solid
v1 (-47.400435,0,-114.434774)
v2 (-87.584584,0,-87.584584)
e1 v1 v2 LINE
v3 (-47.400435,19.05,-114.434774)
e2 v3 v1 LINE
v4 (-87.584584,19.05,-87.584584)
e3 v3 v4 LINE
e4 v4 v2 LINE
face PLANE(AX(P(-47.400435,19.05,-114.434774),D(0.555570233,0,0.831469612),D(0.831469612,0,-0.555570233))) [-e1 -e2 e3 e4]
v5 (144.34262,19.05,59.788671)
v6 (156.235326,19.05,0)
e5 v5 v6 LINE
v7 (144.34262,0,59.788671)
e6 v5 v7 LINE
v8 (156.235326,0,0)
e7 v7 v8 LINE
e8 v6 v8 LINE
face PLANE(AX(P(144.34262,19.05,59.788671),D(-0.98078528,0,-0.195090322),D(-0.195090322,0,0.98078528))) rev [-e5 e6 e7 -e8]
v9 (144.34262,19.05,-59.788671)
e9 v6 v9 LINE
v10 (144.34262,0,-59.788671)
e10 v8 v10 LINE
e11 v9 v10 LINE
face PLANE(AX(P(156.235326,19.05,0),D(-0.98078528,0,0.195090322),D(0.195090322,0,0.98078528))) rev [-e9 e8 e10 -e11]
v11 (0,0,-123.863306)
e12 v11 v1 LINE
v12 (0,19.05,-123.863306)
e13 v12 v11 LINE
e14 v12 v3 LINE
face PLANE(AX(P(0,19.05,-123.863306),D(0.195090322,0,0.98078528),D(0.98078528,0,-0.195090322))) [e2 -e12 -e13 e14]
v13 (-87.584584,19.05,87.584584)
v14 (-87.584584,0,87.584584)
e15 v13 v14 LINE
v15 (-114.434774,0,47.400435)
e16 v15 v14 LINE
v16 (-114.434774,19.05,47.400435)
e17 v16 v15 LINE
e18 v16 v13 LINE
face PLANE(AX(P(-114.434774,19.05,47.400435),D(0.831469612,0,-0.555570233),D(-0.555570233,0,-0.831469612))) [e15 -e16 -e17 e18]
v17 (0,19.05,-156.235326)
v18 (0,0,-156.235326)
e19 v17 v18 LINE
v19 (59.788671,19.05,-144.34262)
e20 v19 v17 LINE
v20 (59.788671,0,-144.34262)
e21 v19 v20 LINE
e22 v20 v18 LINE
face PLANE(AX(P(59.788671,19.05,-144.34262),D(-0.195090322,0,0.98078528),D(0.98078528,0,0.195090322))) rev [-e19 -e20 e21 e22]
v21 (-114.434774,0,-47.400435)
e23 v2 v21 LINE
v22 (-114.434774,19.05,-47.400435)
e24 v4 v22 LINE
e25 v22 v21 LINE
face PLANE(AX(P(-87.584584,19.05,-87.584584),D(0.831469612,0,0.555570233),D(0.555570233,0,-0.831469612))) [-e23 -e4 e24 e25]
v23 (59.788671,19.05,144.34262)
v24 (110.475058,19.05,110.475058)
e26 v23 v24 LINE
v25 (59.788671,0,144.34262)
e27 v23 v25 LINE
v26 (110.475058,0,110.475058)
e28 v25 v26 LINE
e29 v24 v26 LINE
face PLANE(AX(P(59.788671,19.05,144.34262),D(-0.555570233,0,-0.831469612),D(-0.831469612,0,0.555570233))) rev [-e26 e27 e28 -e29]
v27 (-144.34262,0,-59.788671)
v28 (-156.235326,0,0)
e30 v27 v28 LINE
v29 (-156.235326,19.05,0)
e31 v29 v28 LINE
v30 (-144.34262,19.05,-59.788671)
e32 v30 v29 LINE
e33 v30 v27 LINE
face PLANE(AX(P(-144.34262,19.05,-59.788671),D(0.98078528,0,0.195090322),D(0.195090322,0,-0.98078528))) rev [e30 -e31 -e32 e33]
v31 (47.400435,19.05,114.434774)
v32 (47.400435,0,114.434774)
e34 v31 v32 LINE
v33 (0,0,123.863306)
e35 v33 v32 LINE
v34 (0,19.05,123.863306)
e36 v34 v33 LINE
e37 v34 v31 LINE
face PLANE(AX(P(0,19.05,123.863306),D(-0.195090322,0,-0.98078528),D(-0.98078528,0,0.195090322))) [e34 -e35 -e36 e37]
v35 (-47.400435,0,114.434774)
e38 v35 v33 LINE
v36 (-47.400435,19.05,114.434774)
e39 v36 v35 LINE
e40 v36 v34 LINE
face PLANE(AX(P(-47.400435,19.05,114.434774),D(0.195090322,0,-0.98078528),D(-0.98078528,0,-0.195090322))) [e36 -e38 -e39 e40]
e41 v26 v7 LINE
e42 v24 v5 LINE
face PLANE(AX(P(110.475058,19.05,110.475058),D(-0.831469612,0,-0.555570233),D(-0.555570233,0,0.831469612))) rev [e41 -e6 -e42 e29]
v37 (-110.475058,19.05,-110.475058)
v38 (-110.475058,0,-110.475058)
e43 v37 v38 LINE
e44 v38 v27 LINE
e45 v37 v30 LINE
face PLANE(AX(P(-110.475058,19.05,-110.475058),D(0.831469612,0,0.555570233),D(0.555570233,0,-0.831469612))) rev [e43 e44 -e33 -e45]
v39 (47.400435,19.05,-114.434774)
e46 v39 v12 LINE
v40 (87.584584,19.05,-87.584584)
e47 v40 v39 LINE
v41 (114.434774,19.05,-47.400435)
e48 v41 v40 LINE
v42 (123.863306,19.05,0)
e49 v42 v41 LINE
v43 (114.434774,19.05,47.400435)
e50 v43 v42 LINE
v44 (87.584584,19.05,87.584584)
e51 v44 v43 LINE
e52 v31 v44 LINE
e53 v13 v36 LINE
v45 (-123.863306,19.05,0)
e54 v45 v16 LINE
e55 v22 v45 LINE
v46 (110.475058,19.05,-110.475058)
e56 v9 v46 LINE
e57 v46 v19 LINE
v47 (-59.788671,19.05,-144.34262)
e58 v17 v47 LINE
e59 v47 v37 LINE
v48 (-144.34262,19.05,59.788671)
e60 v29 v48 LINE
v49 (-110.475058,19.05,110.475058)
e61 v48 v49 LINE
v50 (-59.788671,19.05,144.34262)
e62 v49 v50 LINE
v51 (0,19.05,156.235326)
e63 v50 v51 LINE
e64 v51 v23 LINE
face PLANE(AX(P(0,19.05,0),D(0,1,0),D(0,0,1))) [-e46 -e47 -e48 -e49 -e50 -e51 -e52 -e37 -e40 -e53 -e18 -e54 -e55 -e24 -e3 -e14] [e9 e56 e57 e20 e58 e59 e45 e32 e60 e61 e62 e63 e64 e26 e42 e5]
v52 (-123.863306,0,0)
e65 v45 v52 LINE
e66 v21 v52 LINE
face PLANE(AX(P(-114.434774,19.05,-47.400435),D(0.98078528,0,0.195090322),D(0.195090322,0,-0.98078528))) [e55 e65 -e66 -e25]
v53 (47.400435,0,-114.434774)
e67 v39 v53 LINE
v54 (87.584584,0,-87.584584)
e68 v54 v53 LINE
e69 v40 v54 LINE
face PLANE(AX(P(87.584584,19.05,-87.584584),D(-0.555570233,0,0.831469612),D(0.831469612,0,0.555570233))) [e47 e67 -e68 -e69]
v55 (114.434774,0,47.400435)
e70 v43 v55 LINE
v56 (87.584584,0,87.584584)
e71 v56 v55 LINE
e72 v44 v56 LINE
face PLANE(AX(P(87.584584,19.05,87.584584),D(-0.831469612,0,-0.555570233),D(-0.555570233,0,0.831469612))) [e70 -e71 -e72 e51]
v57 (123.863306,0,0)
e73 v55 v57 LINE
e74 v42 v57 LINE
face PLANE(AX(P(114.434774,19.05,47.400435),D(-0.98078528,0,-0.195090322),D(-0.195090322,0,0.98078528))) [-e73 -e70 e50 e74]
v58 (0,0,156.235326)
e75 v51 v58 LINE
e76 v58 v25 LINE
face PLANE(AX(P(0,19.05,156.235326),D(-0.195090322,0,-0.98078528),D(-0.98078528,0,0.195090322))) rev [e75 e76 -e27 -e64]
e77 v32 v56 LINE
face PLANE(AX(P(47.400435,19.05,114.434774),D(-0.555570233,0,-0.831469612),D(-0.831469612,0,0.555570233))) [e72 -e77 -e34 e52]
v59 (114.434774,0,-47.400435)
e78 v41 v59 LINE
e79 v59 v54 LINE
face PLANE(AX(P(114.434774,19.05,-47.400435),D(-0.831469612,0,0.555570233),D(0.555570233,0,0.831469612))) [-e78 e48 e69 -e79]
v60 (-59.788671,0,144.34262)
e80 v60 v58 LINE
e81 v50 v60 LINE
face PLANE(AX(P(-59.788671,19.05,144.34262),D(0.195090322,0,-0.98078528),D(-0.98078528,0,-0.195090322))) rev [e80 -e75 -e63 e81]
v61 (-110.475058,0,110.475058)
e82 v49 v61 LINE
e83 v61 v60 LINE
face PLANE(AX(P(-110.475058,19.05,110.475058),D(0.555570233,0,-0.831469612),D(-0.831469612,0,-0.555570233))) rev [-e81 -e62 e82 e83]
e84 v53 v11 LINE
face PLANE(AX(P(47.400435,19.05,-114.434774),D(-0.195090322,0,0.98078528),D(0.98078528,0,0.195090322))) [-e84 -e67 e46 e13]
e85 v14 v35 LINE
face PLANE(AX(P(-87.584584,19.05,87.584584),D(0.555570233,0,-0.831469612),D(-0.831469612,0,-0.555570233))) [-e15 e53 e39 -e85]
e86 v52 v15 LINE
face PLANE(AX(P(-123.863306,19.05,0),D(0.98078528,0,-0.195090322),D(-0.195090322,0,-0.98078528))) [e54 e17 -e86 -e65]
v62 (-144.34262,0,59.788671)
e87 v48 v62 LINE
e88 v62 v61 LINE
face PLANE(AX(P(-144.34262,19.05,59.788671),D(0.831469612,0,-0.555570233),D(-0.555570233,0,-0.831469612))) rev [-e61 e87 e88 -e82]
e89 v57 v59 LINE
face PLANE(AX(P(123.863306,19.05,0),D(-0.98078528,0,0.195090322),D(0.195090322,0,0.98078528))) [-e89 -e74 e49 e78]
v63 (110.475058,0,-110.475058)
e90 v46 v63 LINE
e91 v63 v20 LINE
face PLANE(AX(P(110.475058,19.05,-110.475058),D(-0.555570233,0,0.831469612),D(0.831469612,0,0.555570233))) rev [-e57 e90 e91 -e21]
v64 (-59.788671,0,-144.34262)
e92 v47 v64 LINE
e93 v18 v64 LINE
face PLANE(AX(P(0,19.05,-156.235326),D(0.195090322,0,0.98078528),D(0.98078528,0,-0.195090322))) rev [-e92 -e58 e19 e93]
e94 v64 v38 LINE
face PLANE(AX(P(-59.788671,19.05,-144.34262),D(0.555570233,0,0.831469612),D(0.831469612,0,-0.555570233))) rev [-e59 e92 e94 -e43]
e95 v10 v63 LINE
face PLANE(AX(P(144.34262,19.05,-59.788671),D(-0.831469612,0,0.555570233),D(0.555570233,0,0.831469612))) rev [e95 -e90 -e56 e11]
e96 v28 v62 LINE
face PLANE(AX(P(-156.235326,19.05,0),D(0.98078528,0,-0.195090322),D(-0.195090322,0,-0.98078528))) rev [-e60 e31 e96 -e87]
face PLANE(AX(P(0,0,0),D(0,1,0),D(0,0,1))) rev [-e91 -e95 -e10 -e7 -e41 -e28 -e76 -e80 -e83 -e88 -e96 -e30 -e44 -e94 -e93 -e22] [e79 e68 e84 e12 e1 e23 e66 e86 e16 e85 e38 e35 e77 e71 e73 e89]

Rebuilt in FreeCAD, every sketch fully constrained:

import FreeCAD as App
import Part
import Sketcher
from FreeCAD import Vector
Q = App.Units.Quantity


def add_polygon(sketch, points):
    """Adds a closed chain of lines whose ends are joined by coincident constraints."""
    first, n = sketch.GeometryCount, len(points)
    for a, b in zip(points, points[1:] + points[:1]):
        sketch.addGeometry(Part.LineSegment(App.Vector(*a, 0), App.Vector(*b, 0)), False)
    for i in range(n):
        sketch.addConstraint(Sketcher.Constraint("Coincident", first + i, 2, first + (i + 1) % n, 1))

doc = App.newDocument("Part")
params = doc.addObject("Spreadsheet::Sheet", "Params")
for row, (alias, value) in enumerate([
    ("sketch1_length", "2.4 in"),
    ("pad1_length", "0.75 in"),
], start=1):
    params.set(f"A{row}", alias)
    params.set(f"B{row}", "=" + value)
    params.setAlias(f"B{row}", alias)

body = doc.addObject("PartDesign::Body", "Body")

# Sketch on XZ plane
sketch1 = body.newObject("Sketcher::SketchObject", "Sketch")
sketch1.AttachmentSupport = (doc.getObject("XZ_Plane"), [""])
sketch1.MapMode = "FlatFace"
add_polygon(sketch1, [(156.235326, 0), (144.34262, -59.788671), (110.475058, -110.475058), (59.788671, -144.34262), (0, -156.235326), (-59.788671, -144.34262), (-110.475058, -110.475058), (-144.34262, -59.788671), (-156.235326, 0), (-144.34262, 59.788671), (-110.475058, 110.475058), (-59.788671, 144.34262), (0, 156.235326), (59.788671, 144.34262), (110.475058, 110.475058), (144.34262, 59.788671)])  # lines 0-15
add_polygon(sketch1, [(114.434774, -47.400435), (123.863306, 0), (114.434774, 47.400435), (87.584584, 87.584584), (47.400435, 114.434774), (0, 123.863306), (-47.400435, 114.434774), (-87.584584, 87.584584), (-114.434774, 47.400435), (-123.863306, 0), (-114.434774, -47.400435), (-87.584584, -87.584584), (-47.400435, -114.434774), (0, -123.863306), (47.400435, -114.434774), (87.584584, -87.584584)])  # lines 16-31
sketch1.addConstraint(Sketcher.Constraint("Symmetric", 0, 2, 8, 2, -1, 1))
sketch1.addConstraint(Sketcher.Constraint("Symmetric", 1, 2, 9, 2, -1, 1))
sketch1.addConstraint(Sketcher.Constraint("Symmetric", 2, 2, 10, 2, -1, 1))
sketch1.addConstraint(Sketcher.Constraint("Symmetric", 3, 2, 11, 2, -1, 1))
sketch1.addConstraint(Sketcher.Constraint("Symmetric", 4, 2, 12, 2, -1, 1))
sketch1.addConstraint(Sketcher.Constraint("Symmetric", 5, 2, 13, 2, -1, 1))
sketch1.addConstraint(Sketcher.Constraint("Symmetric", 6, 2, 14, 2, -1, 1))
sketch1.addConstraint(Sketcher.Constraint("Symmetric", 7, 2, 15, 2, -1, 1))
sketch1.addConstraint(Sketcher.Constraint("Symmetric", 16, 2, 24, 2, -1, 1))
sketch1.addConstraint(Sketcher.Constraint("Symmetric", 17, 2, 25, 2, -1, 1))
sketch1.addConstraint(Sketcher.Constraint("Symmetric", 18, 2, 26, 2, -1, 1))
sketch1.addConstraint(Sketcher.Constraint("Symmetric", 19, 2, 27, 2, -1, 1))
sketch1.addConstraint(Sketcher.Constraint("Symmetric", 20, 2, 28, 2, -1, 1))
sketch1.addConstraint(Sketcher.Constraint("Symmetric", 21, 2, 29, 2, -1, 1))
sketch1.addConstraint(Sketcher.Constraint("Symmetric", 22, 2, 30, 2, -1, 1))
sketch1.addConstraint(Sketcher.Constraint("Symmetric", 23, 2, 31, 2, -1, 1))
sketch1.addConstraint(Sketcher.Constraint("Symmetric", 2, 2, 4, 2, -2))
sketch1.addConstraint(Sketcher.Constraint("Symmetric", 1, 2, 5, 2, -2))
sketch1.addConstraint(Sketcher.Constraint("Symmetric", 0, 2, 6, 2, -2))
sketch1.addConstraint(Sketcher.Constraint("Symmetric", 19, 2, 21, 2, -2))
sketch1.addConstraint(Sketcher.Constraint("Symmetric", 18, 2, 22, 2, -2))
sketch1.addConstraint(Sketcher.Constraint("Symmetric", 17, 2, 23, 2, -2))
sketch1.addConstraint(Sketcher.Constraint("PointOnObject", 3, 2, -2))
sketch1.addConstraint(Sketcher.Constraint("PointOnObject", 7, 2, -1))
sketch1.addConstraint(Sketcher.Constraint("PointOnObject", 16, 2, -1))
sketch1.addConstraint(Sketcher.Constraint("PointOnObject", 20, 2, -2))
sketch1.addConstraint(Sketcher.Constraint("Perpendicular", 0, 4))
sketch1.addConstraint(Sketcher.Constraint("Perpendicular", 1, 5))
sketch1.addConstraint(Sketcher.Constraint("Perpendicular", 12, 16))
sketch1.addConstraint(Sketcher.Constraint("Parallel", 14, 18))
sketch1.addConstraint(Sketcher.Constraint("Parallel", 13, 19))
sketch1.addConstraint(Sketcher.Constraint("Perpendicular", 16, 20))
sketch1.addConstraint(Sketcher.Constraint("Equal", 0, 1))
sketch1.addConstraint(Sketcher.Constraint("Equal", 1, 2))
sketch1.addConstraint(Sketcher.Constraint("Equal", 2, 3))
sketch1.addConstraint(Sketcher.Constraint("Equal", 17, 18))
sketch1.addConstraint(Sketcher.Constraint("Equal", 18, 19))
sketch1.addConstraint(Sketcher.Constraint("Equal", 19, 20))
sketch1.addConstraint(Sketcher.Constraint("Distance", 0, Q("2.4 in")))
sketch1.addConstraint(Sketcher.Constraint("Angle", 0, Q("-101.25 deg")))
sketch1.addConstraint(Sketcher.Constraint("Angle", 1, Q("-123.75 deg")))
sketch1.addConstraint(Sketcher.Constraint("DistanceX", 16, 2, 15, 2, Q("32.372019 mm")))
sketch1.setExpression("Constraints[70]", "Params.sketch1_length")
pad1 = body.newObject("PartDesign::Pad", "Pad")
pad1.Profile = sketch1
pad1.setExpression("Length", "Params.pad1_length")
pad1.Reversed = True

doc.recompute()
